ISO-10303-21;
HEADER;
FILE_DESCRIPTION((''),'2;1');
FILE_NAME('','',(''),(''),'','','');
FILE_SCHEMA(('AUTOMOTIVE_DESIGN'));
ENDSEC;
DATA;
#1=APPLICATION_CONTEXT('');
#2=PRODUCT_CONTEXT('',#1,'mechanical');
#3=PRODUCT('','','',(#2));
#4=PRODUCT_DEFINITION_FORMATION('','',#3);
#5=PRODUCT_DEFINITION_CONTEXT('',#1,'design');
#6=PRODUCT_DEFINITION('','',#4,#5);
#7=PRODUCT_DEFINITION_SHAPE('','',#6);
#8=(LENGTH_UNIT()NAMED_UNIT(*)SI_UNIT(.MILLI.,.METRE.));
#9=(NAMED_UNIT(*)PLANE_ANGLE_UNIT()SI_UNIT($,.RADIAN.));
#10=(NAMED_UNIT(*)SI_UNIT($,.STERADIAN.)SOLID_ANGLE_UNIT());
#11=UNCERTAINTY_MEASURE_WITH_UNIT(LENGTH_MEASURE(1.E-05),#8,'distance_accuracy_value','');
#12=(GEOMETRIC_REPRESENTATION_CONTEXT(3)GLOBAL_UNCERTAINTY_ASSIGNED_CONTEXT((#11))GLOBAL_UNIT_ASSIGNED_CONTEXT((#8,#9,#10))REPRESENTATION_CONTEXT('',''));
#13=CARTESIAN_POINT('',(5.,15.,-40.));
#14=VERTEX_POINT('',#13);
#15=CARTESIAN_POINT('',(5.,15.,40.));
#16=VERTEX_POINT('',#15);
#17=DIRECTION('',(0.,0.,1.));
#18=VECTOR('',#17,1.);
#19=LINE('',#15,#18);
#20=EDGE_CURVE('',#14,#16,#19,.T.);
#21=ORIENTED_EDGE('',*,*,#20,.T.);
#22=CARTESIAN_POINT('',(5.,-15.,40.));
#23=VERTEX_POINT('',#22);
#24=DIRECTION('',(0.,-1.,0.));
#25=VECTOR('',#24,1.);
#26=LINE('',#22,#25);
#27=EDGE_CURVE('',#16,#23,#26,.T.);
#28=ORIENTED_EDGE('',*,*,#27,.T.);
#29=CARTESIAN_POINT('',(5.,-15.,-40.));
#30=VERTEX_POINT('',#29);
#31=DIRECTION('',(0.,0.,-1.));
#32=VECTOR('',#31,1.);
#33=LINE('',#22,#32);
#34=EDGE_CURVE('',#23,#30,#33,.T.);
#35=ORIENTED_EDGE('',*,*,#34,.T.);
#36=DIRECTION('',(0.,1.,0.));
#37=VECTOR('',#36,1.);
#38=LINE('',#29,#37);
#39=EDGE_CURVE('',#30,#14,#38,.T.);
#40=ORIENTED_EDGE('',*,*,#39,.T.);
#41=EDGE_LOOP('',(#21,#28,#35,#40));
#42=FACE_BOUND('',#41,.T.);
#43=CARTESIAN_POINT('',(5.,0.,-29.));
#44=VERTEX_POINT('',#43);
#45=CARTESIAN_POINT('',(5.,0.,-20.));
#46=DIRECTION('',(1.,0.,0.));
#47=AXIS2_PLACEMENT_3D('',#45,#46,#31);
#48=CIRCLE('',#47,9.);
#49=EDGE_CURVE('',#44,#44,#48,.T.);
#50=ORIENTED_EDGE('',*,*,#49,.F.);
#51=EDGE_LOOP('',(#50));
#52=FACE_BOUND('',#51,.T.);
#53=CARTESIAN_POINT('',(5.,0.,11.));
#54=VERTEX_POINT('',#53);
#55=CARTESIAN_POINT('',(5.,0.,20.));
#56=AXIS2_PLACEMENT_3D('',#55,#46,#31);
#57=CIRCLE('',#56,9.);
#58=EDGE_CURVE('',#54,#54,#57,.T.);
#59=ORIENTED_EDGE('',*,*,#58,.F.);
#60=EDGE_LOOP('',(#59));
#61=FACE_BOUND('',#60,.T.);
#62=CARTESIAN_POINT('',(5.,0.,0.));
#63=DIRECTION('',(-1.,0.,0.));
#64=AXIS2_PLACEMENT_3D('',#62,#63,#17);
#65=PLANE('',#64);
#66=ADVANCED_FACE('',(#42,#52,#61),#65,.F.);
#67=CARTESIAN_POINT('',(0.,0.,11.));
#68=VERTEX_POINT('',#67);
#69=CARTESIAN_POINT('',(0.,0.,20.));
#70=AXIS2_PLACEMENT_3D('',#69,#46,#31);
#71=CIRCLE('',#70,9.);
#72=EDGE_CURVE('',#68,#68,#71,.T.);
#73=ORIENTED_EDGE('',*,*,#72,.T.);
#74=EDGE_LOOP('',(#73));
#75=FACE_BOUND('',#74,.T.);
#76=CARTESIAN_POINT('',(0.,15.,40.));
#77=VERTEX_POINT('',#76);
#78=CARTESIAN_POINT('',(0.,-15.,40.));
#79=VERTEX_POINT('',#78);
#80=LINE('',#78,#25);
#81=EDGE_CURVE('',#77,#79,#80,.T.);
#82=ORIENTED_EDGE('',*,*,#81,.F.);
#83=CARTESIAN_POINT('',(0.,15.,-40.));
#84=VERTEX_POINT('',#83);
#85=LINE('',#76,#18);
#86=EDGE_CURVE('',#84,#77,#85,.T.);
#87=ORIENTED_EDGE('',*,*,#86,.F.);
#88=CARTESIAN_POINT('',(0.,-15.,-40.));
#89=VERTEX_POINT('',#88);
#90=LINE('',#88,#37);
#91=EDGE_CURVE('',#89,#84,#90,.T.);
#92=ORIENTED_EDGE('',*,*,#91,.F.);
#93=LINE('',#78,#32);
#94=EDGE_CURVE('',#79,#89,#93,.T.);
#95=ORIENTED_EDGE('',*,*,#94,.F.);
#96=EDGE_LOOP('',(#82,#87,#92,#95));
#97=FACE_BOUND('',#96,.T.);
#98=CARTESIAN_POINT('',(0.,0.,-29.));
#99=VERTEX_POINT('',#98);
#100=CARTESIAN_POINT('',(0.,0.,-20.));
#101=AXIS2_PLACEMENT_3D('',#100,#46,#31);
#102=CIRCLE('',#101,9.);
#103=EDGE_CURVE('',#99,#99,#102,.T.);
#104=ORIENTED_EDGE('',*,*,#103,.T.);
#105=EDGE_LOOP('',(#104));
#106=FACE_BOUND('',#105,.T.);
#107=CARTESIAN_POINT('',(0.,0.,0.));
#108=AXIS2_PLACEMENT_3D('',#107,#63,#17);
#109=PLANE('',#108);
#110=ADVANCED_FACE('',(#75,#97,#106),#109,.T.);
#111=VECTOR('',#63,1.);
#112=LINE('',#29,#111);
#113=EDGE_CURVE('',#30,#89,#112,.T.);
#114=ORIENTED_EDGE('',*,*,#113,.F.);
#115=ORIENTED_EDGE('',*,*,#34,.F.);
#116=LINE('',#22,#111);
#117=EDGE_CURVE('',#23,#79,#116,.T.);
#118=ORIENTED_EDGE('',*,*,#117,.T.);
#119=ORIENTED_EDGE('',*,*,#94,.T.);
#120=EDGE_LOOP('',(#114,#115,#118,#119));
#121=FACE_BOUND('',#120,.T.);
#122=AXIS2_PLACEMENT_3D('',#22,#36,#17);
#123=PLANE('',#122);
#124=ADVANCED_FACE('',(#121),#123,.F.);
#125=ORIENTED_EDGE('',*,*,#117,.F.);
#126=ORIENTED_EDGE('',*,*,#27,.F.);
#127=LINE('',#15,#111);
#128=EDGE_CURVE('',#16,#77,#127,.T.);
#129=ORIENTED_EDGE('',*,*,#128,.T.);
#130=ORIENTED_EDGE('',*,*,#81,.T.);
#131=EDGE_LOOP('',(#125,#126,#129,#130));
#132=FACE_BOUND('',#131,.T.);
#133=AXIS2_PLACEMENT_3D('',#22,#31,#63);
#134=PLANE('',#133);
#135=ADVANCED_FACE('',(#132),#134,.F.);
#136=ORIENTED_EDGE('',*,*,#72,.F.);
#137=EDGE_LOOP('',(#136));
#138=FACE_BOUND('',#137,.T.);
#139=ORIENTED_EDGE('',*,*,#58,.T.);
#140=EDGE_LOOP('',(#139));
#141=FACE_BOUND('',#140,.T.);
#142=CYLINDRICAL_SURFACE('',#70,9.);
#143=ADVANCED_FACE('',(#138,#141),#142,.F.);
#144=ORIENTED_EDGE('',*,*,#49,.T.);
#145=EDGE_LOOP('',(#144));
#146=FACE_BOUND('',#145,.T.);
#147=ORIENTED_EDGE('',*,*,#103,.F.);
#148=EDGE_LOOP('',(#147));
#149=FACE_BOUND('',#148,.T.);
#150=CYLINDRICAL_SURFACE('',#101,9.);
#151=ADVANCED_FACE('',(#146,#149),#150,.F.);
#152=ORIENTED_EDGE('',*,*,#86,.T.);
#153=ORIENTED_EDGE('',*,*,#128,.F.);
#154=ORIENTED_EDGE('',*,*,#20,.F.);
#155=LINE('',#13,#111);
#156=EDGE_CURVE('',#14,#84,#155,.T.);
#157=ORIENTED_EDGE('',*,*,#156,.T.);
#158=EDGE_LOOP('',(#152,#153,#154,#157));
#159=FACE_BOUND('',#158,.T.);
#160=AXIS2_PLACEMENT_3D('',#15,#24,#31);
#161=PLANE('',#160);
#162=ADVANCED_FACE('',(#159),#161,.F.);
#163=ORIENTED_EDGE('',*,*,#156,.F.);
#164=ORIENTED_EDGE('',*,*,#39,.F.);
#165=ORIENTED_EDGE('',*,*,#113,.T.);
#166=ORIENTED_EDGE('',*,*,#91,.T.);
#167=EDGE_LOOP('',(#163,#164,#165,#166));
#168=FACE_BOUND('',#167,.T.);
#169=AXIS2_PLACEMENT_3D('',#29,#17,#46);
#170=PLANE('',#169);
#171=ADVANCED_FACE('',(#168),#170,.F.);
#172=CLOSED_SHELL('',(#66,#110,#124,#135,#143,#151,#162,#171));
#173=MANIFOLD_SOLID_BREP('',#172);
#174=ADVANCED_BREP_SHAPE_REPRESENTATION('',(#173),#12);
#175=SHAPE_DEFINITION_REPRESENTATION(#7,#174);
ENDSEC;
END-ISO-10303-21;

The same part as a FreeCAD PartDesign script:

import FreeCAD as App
import Part
import Sketcher
from FreeCAD import Vector
Q = App.Units.Quantity

doc = App.newDocument("Part")
body = doc.addObject("PartDesign::Body", "Body")

sketch1 = body.newObject("Sketcher::SketchObject", "Sketch")
sketch1.AttachmentSupport = (doc.getObject("YZ_Plane"), [""])
sketch1.MapMode = "FlatFace"
sketch1.addGeometry(Part.LineSegment(Vector(15, 40, 0), Vector(-15, 40, 0)), False)
sketch1.addGeometry(Part.LineSegment(Vector(-15, 40, 0), Vector(-15, -40, 0)), False)
sketch1.addGeometry(Part.LineSegment(Vector(-15, -40, 0), Vector(15, -40, 0)), False)
sketch1.addGeometry(Part.LineSegment(Vector(15, -40, 0), Vector(15, 40, 0)), False)
sketch1.addConstraint(Sketcher.Constraint("Coincident", 0, 2, 1, 1))
sketch1.addConstraint(Sketcher.Constraint("Coincident", 1, 2, 2, 1))
sketch1.addConstraint(Sketcher.Constraint("Coincident", 2, 2, 3, 1))
sketch1.addConstraint(Sketcher.Constraint("Coincident", 3, 2, 0, 1))
sketch1.addConstraint(Sketcher.Constraint("Horizontal", 0))
sketch1.addConstraint(Sketcher.Constraint("Vertical", 1))
sketch1.addConstraint(Sketcher.Constraint("Horizontal", 2))
sketch1.addConstraint(Sketcher.Constraint("Vertical", 3))
sketch1.addConstraint(Sketcher.Constraint("Symmetric", 0, 2, 2, 2, -1, 1))
sketch1.addConstraint(Sketcher.Constraint("DistanceX", 0, 2, 0, 1, Q("30 mm")))
sketch1.addConstraint(Sketcher.Constraint("DistanceY", 1, 2, 1, 1, Q("80 mm")))
pad1 = body.newObject("PartDesign::Pad", "Pad")
pad1.Profile = sketch1
pad1.Length = 5

sketch2 = body.newObject("Sketcher::SketchObject", "Sketch001")
sketch2.AttachmentSupport = (doc.getObject("YZ_Plane"), [""])
sketch2.MapMode = "FlatFace"
sketch2.AttachmentOffset = App.Placement(Vector(0, 0, 5), App.Rotation())
sketch2.addGeometry(Part.Circle(Vector(0, -20, 0), Vector(0, 0, 1), 9), False)
sketch2.addGeometry(Part.Circle(Vector(0, 20, 0), Vector(0, 0, 1), 9), False)
sketch2.addConstraint(Sketcher.Constraint("Equal", 0, 1))
sketch2.addConstraint(Sketcher.Constraint("Symmetric", 0, 3, 1, 3, -1, 1))
sketch2.addConstraint(Sketcher.Constraint("PointOnObject", 0, 3, -2))
sketch2.addConstraint(Sketcher.Constraint("Diameter", 0, Q("18 mm")))
sketch2.addConstraint(Sketcher.Constraint("DistanceY", 0, 3, -1, 1, Q("20 mm")))
pocket1 = body.newObject("PartDesign::Pocket", "Pocket")
pocket1.Profile = sketch2
pocket1.Length = 5

doc.recompute()
